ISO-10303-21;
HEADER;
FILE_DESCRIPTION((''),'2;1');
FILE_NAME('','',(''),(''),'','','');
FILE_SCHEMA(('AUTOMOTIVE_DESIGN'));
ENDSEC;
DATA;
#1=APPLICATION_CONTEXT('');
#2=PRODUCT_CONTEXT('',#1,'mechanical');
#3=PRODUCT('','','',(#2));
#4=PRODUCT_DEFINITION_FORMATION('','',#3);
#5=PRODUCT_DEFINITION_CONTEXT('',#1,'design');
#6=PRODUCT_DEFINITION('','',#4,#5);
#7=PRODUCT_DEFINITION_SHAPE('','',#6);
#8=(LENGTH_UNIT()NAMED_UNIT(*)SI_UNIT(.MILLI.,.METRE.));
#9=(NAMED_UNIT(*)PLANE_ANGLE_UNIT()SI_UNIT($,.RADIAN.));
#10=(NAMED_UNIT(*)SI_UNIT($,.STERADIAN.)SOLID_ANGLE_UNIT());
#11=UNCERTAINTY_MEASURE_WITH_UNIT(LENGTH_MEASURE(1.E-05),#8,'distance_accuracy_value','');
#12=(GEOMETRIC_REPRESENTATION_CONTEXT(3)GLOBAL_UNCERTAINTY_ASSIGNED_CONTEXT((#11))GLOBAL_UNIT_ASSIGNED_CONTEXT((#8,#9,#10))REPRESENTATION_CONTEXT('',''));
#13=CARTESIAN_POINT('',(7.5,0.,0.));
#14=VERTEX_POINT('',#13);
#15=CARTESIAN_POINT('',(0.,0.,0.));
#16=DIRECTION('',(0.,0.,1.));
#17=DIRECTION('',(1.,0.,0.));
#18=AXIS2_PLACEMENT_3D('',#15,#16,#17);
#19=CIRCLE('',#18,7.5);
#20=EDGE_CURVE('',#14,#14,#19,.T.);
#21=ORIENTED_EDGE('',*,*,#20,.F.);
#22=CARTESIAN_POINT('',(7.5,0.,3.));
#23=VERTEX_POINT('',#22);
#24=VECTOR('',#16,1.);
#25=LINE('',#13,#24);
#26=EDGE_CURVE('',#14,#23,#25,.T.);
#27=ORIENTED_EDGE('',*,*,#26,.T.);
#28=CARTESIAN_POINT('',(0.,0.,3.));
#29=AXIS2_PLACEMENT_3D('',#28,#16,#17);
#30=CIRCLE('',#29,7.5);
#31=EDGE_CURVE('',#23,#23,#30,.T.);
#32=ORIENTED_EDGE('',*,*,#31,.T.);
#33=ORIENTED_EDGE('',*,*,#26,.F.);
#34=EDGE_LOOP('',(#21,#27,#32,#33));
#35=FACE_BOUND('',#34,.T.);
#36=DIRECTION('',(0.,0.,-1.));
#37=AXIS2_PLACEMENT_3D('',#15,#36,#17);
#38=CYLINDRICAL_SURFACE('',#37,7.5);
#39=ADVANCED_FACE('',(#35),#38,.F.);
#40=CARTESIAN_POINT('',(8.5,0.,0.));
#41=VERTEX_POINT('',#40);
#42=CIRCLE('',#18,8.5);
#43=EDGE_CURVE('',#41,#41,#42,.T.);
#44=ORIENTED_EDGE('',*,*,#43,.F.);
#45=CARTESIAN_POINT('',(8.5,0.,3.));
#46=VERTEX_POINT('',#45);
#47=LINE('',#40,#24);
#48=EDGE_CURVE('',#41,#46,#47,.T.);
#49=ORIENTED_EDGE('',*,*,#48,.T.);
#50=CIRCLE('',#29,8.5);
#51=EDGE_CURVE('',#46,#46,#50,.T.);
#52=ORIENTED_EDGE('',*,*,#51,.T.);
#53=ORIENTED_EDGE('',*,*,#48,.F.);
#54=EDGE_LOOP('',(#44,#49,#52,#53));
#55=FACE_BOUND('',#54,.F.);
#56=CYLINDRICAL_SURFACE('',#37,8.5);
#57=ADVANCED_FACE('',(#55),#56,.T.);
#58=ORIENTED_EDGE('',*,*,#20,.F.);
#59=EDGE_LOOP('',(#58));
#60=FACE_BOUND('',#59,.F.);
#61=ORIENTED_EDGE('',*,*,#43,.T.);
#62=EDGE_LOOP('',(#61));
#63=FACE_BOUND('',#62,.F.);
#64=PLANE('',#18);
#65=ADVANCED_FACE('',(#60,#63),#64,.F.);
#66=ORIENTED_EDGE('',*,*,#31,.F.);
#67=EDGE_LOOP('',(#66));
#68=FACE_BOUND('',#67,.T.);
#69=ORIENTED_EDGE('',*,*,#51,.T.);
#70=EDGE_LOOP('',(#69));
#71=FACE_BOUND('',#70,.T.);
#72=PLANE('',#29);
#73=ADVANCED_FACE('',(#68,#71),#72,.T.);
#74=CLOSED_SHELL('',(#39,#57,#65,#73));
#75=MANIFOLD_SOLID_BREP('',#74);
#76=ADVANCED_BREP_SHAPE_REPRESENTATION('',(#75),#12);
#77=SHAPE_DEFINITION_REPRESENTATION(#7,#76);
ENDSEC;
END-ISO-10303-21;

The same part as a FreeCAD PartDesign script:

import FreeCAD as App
import Part
import Sketcher
from FreeCAD import Vector

doc = App.newDocument("Part")
body = doc.addObject("PartDesign::Body", "Body")

sketch1 = doc.addObject("Sketcher::SketchObject", "Sketch")
body.addObject(sketch1)
sketch1.AttachmentSupport = (doc.XY_Plane, [""])
sketch1.MapMode = "FlatFace"
sketch1.addGeometry([
    Part.Circle(Vector(0, 0, 0), Vector(0, 0, 1), 8),
    Part.Circle(Vector(0, 0, 0), Vector(0, 0, 1), 8),
], False)
sketch1.addConstraint([
    Sketcher.Constraint("Coincident", 0, 3, -1, 1),
    Sketcher.Constraint("Coincident", 1, 3, -1, 1),
    Sketcher.Constraint("Diameter", 0, 17.0),
    Sketcher.Constraint("Diameter", 1, 15.0),
])
pad1 = doc.addObject("PartDesign::Pad", "Pad")
body.addObject(pad1)
pad1.Profile = sketch1
pad1.Length = 3

doc.recompute()
